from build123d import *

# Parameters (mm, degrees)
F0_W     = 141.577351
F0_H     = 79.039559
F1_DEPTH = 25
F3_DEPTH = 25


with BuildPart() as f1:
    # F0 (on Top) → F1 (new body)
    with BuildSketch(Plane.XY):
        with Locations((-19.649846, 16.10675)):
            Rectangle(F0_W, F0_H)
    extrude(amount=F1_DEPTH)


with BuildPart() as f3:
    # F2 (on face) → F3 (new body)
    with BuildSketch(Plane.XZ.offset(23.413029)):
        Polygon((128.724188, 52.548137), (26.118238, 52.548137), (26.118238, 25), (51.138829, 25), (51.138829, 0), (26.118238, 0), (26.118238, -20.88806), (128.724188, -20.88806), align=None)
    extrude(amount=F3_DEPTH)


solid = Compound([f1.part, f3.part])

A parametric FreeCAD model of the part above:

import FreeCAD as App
import Part
import Sketcher
from FreeCAD import Vector

doc = App.newDocument("Part")
body = doc.addObject("PartDesign::Body", "Body")

sketch1 = body.newObject("Sketcher::SketchObject", "Sketch")
sketch1.AttachmentSupport = (doc.getObject("XY_Plane"), [""])
sketch1.MapMode = "FlatFace"
sketch1.addGeometry([
    Part.LineSegment(Vector(-90.438521, 55.626529, 0), Vector(-90.438521, -23.41303, 0)),
    Part.LineSegment(Vector(-90.438521, -23.41303, 0), Vector(51.138829, -23.41303, 0)),
    Part.LineSegment(Vector(51.138829, -23.41303, 0), Vector(51.138829, 55.626529, 0)),
    Part.LineSegment(Vector(51.138829, 55.626529, 0), Vector(-90.438521, 55.626529, 0)),
], False)
sketch1.addConstraint([
    Sketcher.Constraint("Coincident", 0, 2, 1, 1),
    Sketcher.Constraint("Coincident", 1, 2, 2, 1),
    Sketcher.Constraint("Coincident", 2, 2, 3, 1),
    Sketcher.Constraint("Coincident", 3, 2, 0, 1),
    Sketcher.Constraint("Vertical", 0),
    Sketcher.Constraint("Horizontal", 1),
    Sketcher.Constraint("Vertical", 2),
    Sketcher.Constraint("Horizontal", 3),
    Sketcher.Constraint("DistanceX", 1, 1, 1, 2, 141.577351),
    Sketcher.Constraint("DistanceY", 0, 2, 0, 1, 79.039559),
    Sketcher.Constraint("DistanceX", 0, 2, -1, 1, 90.438521),
    Sketcher.Constraint("DistanceY", 0, 2, -1, 1, 23.41303),
])
pad1 = body.newObject("PartDesign::Pad", "Pad")
pad1.Profile = sketch1
pad1.Length = 25
body2 = doc.addObject("PartDesign::Body", "Body001")

sketch2 = body2.newObject("Sketcher::SketchObject", "Sketch001")
sketch2.AttachmentSupport = (doc.getObject("XZ_Plane001"), [""])
sketch2.MapMode = "FlatFace"
sketch2.AttachmentOffset = App.Placement(Vector(0, 0, 23.413029), App.Rotation())
sketch2.addGeometry([
    Part.LineSegment(Vector(128.724188, 52.548137, 0), Vector(26.118238, 52.548137, 0)),
    Part.LineSegment(Vector(26.118238, 52.548137, 0), Vector(26.118238, 25, 0)),
    Part.LineSegment(Vector(26.118238, 25, 0), Vector(51.138829, 25, 0)),
    Part.LineSegment(Vector(51.138829, 25, 0), Vector(51.138829, 0, 0)),
    Part.LineSegment(Vector(51.138829, 0, 0), Vector(26.118238, 0, 0)),
    Part.LineSegment(Vector(26.118238, 0, 0), Vector(26.118238, -20.88806, 0)),
    Part.LineSegment(Vector(26.118238, -20.88806, 0), Vector(128.724188, -20.88806, 0)),
    Part.LineSegment(Vector(128.724188, -20.88806, 0), Vector(128.724188, 52.548137, 0)),
], False)
sketch2.addConstraint([
    Sketcher.Constraint("Coincident", 0, 2, 1, 1),
    Sketcher.Constraint("Coincident", 1, 2, 2, 1),
    Sketcher.Constraint("Coincident", 2, 2, 3, 1),
    Sketcher.Constraint("Coincident", 3, 2, 4, 1),
    Sketcher.Constraint("Coincident", 4, 2, 5, 1),
    Sketcher.Constraint("Coincident", 5, 2, 6, 1),
    Sketcher.Constraint("Coincident", 6, 2, 7, 1),
    Sketcher.Constraint("Coincident", 7, 2, 0, 1),
    Sketcher.Constraint("Horizontal", 0),
    Sketcher.Constraint("Vertical", 1),
    Sketcher.Constraint("Horizontal", 2),
    Sketcher.Constraint("Vertical", 3),
    Sketcher.Constraint("Horizontal", 4),
    Sketcher.Constraint("Vertical", 5),
    Sketcher.Constraint("Horizontal", 6),
    Sketcher.Constraint("Vertical", 7),
    Sketcher.Constraint("PointOnObject", 3, 2, -1),
    Sketcher.Constraint("Vertical", 1, 2, 4, 2),
    Sketcher.Constraint("DistanceY", 3, 2, 3, 1, 25.0),
    Sketcher.Constraint("DistanceX", 0, 2, 0, 1, 102.60595),
    Sketcher.Constraint("DistanceX", 2, 1, 2, 2, 25.020591),
    Sketcher.Constraint("DistanceY", 5, 2, 5, 1, 20.88806),
    Sketcher.Constraint("DistanceY", 1, 2, 1, 1, 27.548137),
    Sketcher.Constraint("DistanceX", -1, 1, 0, 2, 26.118238),
])
pad2 = body2.newObject("PartDesign::Pad", "Pad001")
pad2.Profile = sketch2
pad2.Length = 25

doc.recompute()
